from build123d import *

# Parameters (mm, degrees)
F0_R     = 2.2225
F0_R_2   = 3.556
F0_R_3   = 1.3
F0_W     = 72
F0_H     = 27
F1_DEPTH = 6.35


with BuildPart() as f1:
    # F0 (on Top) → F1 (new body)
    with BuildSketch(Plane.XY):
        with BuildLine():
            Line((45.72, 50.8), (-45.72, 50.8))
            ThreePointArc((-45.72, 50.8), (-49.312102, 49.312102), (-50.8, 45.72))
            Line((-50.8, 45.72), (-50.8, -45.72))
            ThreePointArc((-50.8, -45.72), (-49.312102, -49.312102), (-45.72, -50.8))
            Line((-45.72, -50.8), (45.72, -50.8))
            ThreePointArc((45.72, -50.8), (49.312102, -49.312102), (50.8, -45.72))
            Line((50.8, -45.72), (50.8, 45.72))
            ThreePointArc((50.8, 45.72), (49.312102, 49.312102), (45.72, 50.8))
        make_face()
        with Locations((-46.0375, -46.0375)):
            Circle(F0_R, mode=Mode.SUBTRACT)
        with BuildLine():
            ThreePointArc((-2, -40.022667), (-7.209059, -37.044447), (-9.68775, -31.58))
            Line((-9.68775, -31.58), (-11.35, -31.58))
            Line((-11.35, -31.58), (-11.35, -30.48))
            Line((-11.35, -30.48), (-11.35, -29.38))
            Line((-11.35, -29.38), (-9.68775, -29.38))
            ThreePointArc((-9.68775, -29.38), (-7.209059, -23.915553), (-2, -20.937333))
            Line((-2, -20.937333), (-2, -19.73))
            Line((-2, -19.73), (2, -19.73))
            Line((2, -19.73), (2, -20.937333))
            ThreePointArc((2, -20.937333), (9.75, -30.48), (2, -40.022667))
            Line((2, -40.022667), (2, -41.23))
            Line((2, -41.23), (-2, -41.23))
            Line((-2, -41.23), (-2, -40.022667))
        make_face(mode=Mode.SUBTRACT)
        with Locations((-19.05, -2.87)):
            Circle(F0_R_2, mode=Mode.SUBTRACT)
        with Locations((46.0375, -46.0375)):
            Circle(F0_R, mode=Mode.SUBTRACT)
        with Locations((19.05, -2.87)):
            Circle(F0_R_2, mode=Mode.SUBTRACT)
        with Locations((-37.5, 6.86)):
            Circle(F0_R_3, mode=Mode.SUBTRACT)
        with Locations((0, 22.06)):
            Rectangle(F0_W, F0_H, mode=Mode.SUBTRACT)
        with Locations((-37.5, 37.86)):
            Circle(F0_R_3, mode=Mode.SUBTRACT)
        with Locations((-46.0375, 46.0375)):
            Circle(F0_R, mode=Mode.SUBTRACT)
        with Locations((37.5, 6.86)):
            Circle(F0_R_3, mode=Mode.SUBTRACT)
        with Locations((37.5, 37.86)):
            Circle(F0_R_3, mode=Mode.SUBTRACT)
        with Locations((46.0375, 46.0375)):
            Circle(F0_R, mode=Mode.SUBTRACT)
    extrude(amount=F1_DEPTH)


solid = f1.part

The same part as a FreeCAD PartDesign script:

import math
import FreeCAD as App
import Part
import Sketcher

V = App.Vector
Q = App.Units.Quantity

doc = App.newDocument("Part")
body = doc.addObject("PartDesign::Body", "Body")

sketch1 = doc.addObject("Sketcher::SketchObject", "Sketch")
body.addObject(sketch1)
sketch1.AttachmentSupport = (doc.XY_Plane, [""])
sketch1.MapMode = "FlatFace"
sketch1.addGeometry([
    Part.LineSegment(V(45.72, 50.8, 0), V(-45.72, 50.8, 0)),
    Part.ArcOfCircle(Part.Circle(V(-45.719998, 45.719998, 0), V(0, 0, 1), 5.080002), math.radians(90.000017), math.radians(179.999983)),
    Part.LineSegment(V(-50.8, 45.72, 0), V(-50.8, -45.72, 0)),
    Part.ArcOfCircle(Part.Circle(V(-45.719998, -45.719998, 0), V(0, 0, 1), 5.080002), math.radians(-179.999983), math.radians(-90.000017)),
    Part.LineSegment(V(-45.72, -50.8, 0), V(45.72, -50.8, 0)),
    Part.ArcOfCircle(Part.Circle(V(45.719998, -45.719998, 0), V(0, 0, 1), 5.080002), math.radians(-89.999983), math.radians(-0.000017)),
    Part.LineSegment(V(50.8, -45.72, 0), V(50.8, 45.72, 0)),
    Part.ArcOfCircle(Part.Circle(V(45.719998, 45.719998, 0), V(0, 0, 1), 5.080002), math.radians(0.000017), math.radians(89.999983)),
    Part.Circle(V(-46.0375, -46.0375, 0), V(0, 0, 1), 2.2225),
    Part.LineSegment(V(-2, -41.23, 0), V(-2, -40.022667, 0)),
    Part.ArcOfCircle(Part.Circle(V(0, -30.48, 0), V(0, 0, 1), 9.75), math.radians(-173.522067), math.radians(-101.837004)),
    Part.LineSegment(V(-9.68775, -31.58, 0), V(-11.35, -31.58, 0)),
    Part.LineSegment(V(-11.35, -31.58, 0), V(-11.35, -29.38, 0)),
    Part.LineSegment(V(-11.35, -29.38, 0), V(-9.68775, -29.38, 0)),
    Part.ArcOfCircle(Part.Circle(V(0, -30.48, 0), V(0, 0, 1), 9.75), math.radians(101.837004), math.radians(173.522067)),
    Part.LineSegment(V(-2, -20.937333, 0), V(-2, -19.73, 0)),
    Part.LineSegment(V(-2, -19.73, 0), V(2, -19.73, 0)),
    Part.LineSegment(V(2, -19.73, 0), V(2, -20.937333, 0)),
    Part.ArcOfCircle(Part.Circle(V(0, -30.48, 0), V(0, 0, 1), 9.75), math.radians(-78.162998), math.radians(78.162998)),
    Part.LineSegment(V(2, -40.022667, 0), V(2, -41.23, 0)),
    Part.LineSegment(V(2, -41.23, 0), V(-2, -41.23, 0)),
    Part.Circle(V(-19.05, -2.87, 0), V(0, 0, 1), 3.556),
    Part.Circle(V(46.0375, -46.0375, 0), V(0, 0, 1), 2.2225),
    Part.Circle(V(19.05, -2.87, 0), V(0, 0, 1), 3.556),
    Part.Circle(V(-37.5, 6.86, 0), V(0, 0, 1), 1.3),
    Part.Circle(V(-37.5, 37.86, 0), V(0, 0, 1), 1.3),
    Part.Circle(V(-46.0375, 46.0375, 0), V(0, 0, 1), 2.2225),
    Part.LineSegment(V(36, 8.56, 0), V(-36, 8.56, 0)),
    Part.LineSegment(V(-36, 8.56, 0), V(-36, 35.56, 0)),
    Part.LineSegment(V(-36, 35.56, 0), V(36, 35.56, 0)),
    Part.LineSegment(V(36, 35.56, 0), V(36, 8.56, 0)),
    Part.Circle(V(37.5, 6.86, 0), V(0, 0, 1), 1.3),
    Part.Circle(V(37.5, 37.86, 0), V(0, 0, 1), 1.3),
    Part.Circle(V(46.0375, 46.0375, 0), V(0, 0, 1), 2.2225),
], False)
sketch1.addConstraint([
    Sketcher.Constraint("Tangent", 0, 2, 1, 1),
    Sketcher.Constraint("Tangent", 1, 2, 2, 1),
    Sketcher.Constraint("Tangent", 2, 2, 3, 1),
    Sketcher.Constraint("Tangent", 3, 2, 4, 1),
    Sketcher.Constraint("Tangent", 4, 2, 5, 1),
    Sketcher.Constraint("Tangent", 5, 2, 6, 1),
    Sketcher.Constraint("Tangent", 6, 2, 7, 1),
    Sketcher.Constraint("Tangent", 7, 2, 0, 1),
    Sketcher.Constraint("Coincident", 9, 2, 10, 2),
    Sketcher.Constraint("Coincident", 10, 1, 11, 1),
    Sketcher.Constraint("Coincident", 11, 2, 12, 1),
    Sketcher.Constraint("Coincident", 12, 2, 13, 1),
    Sketcher.Constraint("Coincident", 13, 2, 14, 2),
    Sketcher.Constraint("Coincident", 14, 1, 15, 1),
    Sketcher.Constraint("Coincident", 15, 2, 16, 1),
    Sketcher.Constraint("Coincident", 16, 2, 17, 1),
    Sketcher.Constraint("Coincident", 17, 2, 18, 2),
    Sketcher.Constraint("Coincident", 18, 1, 19, 1),
    Sketcher.Constraint("Coincident", 19, 2, 20, 1),
    Sketcher.Constraint("Coincident", 20, 2, 9, 1),
    Sketcher.Constraint("Coincident", 27, 2, 28, 1),
    Sketcher.Constraint("Coincident", 28, 2, 29, 1),
    Sketcher.Constraint("Coincident", 29, 2, 30, 1),
    Sketcher.Constraint("Coincident", 30, 2, 27, 1),
    Sketcher.Constraint("Horizontal", 0),
    Sketcher.Constraint("Vertical", 2),
    Sketcher.Constraint("Horizontal", 4),
    Sketcher.Constraint("Vertical", 6),
    Sketcher.Constraint("Vertical", 9),
    Sketcher.Constraint("Horizontal", 11),
    Sketcher.Constraint("Vertical", 12),
    Sketcher.Constraint("Horizontal", 13),
    Sketcher.Constraint("Vertical", 15),
    Sketcher.Constraint("Horizontal", 16),
    Sketcher.Constraint("Vertical", 17),
    Sketcher.Constraint("Vertical", 19),
    Sketcher.Constraint("Horizontal", 20),
    Sketcher.Constraint("Horizontal", 27),
    Sketcher.Constraint("Vertical", 28),
    Sketcher.Constraint("Horizontal", 29),
    Sketcher.Constraint("Vertical", 30),
    Sketcher.Constraint("Coincident", 14, 3, 10, 3),
    Sketcher.Constraint("Coincident", 18, 3, 10, 3),
    Sketcher.Constraint("Equal", 1, 3),
    Sketcher.Constraint("Equal", 3, 5),
    Sketcher.Constraint("Equal", 5, 7),
    Sketcher.Constraint("Equal", 10, 14),
    Sketcher.Constraint("Equal", 14, 18),
    Sketcher.Constraint("Equal", 8, 22),
    Sketcher.Constraint("Equal", 21, 23),
    Sketcher.Constraint("Equal", 24, 25),
    Sketcher.Constraint("Equal", 22, 26),
    Sketcher.Constraint("Equal", 25, 31),
    Sketcher.Constraint("Equal", 31, 32),
    Sketcher.Constraint("Equal", 26, 33),
    Sketcher.Constraint("Symmetric", 1, 3, 5, 3, -1, 1),
    Sketcher.Constraint("Symmetric", 22, 3, 26, 3, -1, 1),
    Sketcher.Constraint("Symmetric", 8, 3, 33, 3, -1, 1),
    Sketcher.Constraint("Symmetric", 8, 3, 22, 3, -2),
    Sketcher.Constraint("Symmetric", 21, 3, 23, 3, -2),
    Sketcher.Constraint("Symmetric", 24, 3, 31, 3, -2),
    Sketcher.Constraint("Symmetric", 25, 3, 32, 3, -2),
    Sketcher.Constraint("Symmetric", 14, 1, 17, 2, -2),
    Sketcher.Constraint("Horizontal", 9, 2, 18, 1),
    Sketcher.Constraint("Vertical", 24, 3, 25, 3),
    Sketcher.Constraint("Vertical", 10, 1, 13, 2),
    Sketcher.Constraint("Vertical", 9, 2, 14, 1),
    Sketcher.Constraint("Equal", 4, 2),
    Sketcher.Constraint("Equal", 9, 15),
    Sketcher.Constraint("Diameter", 24, Q("2.6 mm")),
    Sketcher.Constraint("DistanceX", 16, 1, 16, 2, Q("4 mm")),
    Sketcher.Constraint("DistanceX", 27, 2, 27, 1, Q("72 mm")),
    Sketcher.Constraint("DistanceY", 28, 1, 28, 2, Q("27 mm")),
    Sketcher.Constraint("Radius", 1, Q("5.080002 mm")),
    Sketcher.Constraint("Radius", 10, Q("9.75 mm")),
    Sketcher.Constraint("Diameter", 8, Q("4.445 mm")),
    Sketcher.Constraint("Diameter", 21, Q("7.112 mm")),
    Sketcher.Constraint("DistanceY", 12, 1, 12, 2, Q("2.2 mm")),
    Sketcher.Constraint("DistanceX", 27, 2, -1, 1, Q("36 mm")),
    Sketcher.Constraint("DistanceY", 24, 3, 25, 3, Q("31 mm")),
    Sketcher.Constraint("DistanceX", 25, 3, 32, 3, Q("75 mm")),
    Sketcher.Constraint("DistanceX", 0, 2, 0, 1, Q("91.44 mm")),
    Sketcher.Constraint("DistanceY", 10, 3, 1, 3, Q("76.199998 mm")),
    Sketcher.Constraint("DistanceX", 21, 3, 23, 3, Q("38.1 mm")),
    Sketcher.Constraint("DistanceY", 24, 3, 27, 2, Q("1.7 mm")),
    Sketcher.Constraint("DistanceY", 21, 3, -1, 1, Q("2.87 mm")),
    Sketcher.Constraint("DistanceY", -1, 1, 24, 3, Q("6.86 mm")),
    Sketcher.Constraint("DistanceX", 11, 2, -1, 1, Q("11.35 mm")),
    Sketcher.Constraint("DistanceY", 15, 2, -1, 1, Q("19.73 mm")),
    Sketcher.Constraint("DistanceX", 8, 3, -1, 1, Q("46.0375 mm")),
    Sketcher.Constraint("DistanceY", 8, 3, -1, 1, Q("46.0375 mm")),
])
pad1 = doc.addObject("PartDesign::Pad", "Pad")
body.addObject(pad1)
pad1.Profile = sketch1
pad1.Length = 6.35

doc.recompute()
